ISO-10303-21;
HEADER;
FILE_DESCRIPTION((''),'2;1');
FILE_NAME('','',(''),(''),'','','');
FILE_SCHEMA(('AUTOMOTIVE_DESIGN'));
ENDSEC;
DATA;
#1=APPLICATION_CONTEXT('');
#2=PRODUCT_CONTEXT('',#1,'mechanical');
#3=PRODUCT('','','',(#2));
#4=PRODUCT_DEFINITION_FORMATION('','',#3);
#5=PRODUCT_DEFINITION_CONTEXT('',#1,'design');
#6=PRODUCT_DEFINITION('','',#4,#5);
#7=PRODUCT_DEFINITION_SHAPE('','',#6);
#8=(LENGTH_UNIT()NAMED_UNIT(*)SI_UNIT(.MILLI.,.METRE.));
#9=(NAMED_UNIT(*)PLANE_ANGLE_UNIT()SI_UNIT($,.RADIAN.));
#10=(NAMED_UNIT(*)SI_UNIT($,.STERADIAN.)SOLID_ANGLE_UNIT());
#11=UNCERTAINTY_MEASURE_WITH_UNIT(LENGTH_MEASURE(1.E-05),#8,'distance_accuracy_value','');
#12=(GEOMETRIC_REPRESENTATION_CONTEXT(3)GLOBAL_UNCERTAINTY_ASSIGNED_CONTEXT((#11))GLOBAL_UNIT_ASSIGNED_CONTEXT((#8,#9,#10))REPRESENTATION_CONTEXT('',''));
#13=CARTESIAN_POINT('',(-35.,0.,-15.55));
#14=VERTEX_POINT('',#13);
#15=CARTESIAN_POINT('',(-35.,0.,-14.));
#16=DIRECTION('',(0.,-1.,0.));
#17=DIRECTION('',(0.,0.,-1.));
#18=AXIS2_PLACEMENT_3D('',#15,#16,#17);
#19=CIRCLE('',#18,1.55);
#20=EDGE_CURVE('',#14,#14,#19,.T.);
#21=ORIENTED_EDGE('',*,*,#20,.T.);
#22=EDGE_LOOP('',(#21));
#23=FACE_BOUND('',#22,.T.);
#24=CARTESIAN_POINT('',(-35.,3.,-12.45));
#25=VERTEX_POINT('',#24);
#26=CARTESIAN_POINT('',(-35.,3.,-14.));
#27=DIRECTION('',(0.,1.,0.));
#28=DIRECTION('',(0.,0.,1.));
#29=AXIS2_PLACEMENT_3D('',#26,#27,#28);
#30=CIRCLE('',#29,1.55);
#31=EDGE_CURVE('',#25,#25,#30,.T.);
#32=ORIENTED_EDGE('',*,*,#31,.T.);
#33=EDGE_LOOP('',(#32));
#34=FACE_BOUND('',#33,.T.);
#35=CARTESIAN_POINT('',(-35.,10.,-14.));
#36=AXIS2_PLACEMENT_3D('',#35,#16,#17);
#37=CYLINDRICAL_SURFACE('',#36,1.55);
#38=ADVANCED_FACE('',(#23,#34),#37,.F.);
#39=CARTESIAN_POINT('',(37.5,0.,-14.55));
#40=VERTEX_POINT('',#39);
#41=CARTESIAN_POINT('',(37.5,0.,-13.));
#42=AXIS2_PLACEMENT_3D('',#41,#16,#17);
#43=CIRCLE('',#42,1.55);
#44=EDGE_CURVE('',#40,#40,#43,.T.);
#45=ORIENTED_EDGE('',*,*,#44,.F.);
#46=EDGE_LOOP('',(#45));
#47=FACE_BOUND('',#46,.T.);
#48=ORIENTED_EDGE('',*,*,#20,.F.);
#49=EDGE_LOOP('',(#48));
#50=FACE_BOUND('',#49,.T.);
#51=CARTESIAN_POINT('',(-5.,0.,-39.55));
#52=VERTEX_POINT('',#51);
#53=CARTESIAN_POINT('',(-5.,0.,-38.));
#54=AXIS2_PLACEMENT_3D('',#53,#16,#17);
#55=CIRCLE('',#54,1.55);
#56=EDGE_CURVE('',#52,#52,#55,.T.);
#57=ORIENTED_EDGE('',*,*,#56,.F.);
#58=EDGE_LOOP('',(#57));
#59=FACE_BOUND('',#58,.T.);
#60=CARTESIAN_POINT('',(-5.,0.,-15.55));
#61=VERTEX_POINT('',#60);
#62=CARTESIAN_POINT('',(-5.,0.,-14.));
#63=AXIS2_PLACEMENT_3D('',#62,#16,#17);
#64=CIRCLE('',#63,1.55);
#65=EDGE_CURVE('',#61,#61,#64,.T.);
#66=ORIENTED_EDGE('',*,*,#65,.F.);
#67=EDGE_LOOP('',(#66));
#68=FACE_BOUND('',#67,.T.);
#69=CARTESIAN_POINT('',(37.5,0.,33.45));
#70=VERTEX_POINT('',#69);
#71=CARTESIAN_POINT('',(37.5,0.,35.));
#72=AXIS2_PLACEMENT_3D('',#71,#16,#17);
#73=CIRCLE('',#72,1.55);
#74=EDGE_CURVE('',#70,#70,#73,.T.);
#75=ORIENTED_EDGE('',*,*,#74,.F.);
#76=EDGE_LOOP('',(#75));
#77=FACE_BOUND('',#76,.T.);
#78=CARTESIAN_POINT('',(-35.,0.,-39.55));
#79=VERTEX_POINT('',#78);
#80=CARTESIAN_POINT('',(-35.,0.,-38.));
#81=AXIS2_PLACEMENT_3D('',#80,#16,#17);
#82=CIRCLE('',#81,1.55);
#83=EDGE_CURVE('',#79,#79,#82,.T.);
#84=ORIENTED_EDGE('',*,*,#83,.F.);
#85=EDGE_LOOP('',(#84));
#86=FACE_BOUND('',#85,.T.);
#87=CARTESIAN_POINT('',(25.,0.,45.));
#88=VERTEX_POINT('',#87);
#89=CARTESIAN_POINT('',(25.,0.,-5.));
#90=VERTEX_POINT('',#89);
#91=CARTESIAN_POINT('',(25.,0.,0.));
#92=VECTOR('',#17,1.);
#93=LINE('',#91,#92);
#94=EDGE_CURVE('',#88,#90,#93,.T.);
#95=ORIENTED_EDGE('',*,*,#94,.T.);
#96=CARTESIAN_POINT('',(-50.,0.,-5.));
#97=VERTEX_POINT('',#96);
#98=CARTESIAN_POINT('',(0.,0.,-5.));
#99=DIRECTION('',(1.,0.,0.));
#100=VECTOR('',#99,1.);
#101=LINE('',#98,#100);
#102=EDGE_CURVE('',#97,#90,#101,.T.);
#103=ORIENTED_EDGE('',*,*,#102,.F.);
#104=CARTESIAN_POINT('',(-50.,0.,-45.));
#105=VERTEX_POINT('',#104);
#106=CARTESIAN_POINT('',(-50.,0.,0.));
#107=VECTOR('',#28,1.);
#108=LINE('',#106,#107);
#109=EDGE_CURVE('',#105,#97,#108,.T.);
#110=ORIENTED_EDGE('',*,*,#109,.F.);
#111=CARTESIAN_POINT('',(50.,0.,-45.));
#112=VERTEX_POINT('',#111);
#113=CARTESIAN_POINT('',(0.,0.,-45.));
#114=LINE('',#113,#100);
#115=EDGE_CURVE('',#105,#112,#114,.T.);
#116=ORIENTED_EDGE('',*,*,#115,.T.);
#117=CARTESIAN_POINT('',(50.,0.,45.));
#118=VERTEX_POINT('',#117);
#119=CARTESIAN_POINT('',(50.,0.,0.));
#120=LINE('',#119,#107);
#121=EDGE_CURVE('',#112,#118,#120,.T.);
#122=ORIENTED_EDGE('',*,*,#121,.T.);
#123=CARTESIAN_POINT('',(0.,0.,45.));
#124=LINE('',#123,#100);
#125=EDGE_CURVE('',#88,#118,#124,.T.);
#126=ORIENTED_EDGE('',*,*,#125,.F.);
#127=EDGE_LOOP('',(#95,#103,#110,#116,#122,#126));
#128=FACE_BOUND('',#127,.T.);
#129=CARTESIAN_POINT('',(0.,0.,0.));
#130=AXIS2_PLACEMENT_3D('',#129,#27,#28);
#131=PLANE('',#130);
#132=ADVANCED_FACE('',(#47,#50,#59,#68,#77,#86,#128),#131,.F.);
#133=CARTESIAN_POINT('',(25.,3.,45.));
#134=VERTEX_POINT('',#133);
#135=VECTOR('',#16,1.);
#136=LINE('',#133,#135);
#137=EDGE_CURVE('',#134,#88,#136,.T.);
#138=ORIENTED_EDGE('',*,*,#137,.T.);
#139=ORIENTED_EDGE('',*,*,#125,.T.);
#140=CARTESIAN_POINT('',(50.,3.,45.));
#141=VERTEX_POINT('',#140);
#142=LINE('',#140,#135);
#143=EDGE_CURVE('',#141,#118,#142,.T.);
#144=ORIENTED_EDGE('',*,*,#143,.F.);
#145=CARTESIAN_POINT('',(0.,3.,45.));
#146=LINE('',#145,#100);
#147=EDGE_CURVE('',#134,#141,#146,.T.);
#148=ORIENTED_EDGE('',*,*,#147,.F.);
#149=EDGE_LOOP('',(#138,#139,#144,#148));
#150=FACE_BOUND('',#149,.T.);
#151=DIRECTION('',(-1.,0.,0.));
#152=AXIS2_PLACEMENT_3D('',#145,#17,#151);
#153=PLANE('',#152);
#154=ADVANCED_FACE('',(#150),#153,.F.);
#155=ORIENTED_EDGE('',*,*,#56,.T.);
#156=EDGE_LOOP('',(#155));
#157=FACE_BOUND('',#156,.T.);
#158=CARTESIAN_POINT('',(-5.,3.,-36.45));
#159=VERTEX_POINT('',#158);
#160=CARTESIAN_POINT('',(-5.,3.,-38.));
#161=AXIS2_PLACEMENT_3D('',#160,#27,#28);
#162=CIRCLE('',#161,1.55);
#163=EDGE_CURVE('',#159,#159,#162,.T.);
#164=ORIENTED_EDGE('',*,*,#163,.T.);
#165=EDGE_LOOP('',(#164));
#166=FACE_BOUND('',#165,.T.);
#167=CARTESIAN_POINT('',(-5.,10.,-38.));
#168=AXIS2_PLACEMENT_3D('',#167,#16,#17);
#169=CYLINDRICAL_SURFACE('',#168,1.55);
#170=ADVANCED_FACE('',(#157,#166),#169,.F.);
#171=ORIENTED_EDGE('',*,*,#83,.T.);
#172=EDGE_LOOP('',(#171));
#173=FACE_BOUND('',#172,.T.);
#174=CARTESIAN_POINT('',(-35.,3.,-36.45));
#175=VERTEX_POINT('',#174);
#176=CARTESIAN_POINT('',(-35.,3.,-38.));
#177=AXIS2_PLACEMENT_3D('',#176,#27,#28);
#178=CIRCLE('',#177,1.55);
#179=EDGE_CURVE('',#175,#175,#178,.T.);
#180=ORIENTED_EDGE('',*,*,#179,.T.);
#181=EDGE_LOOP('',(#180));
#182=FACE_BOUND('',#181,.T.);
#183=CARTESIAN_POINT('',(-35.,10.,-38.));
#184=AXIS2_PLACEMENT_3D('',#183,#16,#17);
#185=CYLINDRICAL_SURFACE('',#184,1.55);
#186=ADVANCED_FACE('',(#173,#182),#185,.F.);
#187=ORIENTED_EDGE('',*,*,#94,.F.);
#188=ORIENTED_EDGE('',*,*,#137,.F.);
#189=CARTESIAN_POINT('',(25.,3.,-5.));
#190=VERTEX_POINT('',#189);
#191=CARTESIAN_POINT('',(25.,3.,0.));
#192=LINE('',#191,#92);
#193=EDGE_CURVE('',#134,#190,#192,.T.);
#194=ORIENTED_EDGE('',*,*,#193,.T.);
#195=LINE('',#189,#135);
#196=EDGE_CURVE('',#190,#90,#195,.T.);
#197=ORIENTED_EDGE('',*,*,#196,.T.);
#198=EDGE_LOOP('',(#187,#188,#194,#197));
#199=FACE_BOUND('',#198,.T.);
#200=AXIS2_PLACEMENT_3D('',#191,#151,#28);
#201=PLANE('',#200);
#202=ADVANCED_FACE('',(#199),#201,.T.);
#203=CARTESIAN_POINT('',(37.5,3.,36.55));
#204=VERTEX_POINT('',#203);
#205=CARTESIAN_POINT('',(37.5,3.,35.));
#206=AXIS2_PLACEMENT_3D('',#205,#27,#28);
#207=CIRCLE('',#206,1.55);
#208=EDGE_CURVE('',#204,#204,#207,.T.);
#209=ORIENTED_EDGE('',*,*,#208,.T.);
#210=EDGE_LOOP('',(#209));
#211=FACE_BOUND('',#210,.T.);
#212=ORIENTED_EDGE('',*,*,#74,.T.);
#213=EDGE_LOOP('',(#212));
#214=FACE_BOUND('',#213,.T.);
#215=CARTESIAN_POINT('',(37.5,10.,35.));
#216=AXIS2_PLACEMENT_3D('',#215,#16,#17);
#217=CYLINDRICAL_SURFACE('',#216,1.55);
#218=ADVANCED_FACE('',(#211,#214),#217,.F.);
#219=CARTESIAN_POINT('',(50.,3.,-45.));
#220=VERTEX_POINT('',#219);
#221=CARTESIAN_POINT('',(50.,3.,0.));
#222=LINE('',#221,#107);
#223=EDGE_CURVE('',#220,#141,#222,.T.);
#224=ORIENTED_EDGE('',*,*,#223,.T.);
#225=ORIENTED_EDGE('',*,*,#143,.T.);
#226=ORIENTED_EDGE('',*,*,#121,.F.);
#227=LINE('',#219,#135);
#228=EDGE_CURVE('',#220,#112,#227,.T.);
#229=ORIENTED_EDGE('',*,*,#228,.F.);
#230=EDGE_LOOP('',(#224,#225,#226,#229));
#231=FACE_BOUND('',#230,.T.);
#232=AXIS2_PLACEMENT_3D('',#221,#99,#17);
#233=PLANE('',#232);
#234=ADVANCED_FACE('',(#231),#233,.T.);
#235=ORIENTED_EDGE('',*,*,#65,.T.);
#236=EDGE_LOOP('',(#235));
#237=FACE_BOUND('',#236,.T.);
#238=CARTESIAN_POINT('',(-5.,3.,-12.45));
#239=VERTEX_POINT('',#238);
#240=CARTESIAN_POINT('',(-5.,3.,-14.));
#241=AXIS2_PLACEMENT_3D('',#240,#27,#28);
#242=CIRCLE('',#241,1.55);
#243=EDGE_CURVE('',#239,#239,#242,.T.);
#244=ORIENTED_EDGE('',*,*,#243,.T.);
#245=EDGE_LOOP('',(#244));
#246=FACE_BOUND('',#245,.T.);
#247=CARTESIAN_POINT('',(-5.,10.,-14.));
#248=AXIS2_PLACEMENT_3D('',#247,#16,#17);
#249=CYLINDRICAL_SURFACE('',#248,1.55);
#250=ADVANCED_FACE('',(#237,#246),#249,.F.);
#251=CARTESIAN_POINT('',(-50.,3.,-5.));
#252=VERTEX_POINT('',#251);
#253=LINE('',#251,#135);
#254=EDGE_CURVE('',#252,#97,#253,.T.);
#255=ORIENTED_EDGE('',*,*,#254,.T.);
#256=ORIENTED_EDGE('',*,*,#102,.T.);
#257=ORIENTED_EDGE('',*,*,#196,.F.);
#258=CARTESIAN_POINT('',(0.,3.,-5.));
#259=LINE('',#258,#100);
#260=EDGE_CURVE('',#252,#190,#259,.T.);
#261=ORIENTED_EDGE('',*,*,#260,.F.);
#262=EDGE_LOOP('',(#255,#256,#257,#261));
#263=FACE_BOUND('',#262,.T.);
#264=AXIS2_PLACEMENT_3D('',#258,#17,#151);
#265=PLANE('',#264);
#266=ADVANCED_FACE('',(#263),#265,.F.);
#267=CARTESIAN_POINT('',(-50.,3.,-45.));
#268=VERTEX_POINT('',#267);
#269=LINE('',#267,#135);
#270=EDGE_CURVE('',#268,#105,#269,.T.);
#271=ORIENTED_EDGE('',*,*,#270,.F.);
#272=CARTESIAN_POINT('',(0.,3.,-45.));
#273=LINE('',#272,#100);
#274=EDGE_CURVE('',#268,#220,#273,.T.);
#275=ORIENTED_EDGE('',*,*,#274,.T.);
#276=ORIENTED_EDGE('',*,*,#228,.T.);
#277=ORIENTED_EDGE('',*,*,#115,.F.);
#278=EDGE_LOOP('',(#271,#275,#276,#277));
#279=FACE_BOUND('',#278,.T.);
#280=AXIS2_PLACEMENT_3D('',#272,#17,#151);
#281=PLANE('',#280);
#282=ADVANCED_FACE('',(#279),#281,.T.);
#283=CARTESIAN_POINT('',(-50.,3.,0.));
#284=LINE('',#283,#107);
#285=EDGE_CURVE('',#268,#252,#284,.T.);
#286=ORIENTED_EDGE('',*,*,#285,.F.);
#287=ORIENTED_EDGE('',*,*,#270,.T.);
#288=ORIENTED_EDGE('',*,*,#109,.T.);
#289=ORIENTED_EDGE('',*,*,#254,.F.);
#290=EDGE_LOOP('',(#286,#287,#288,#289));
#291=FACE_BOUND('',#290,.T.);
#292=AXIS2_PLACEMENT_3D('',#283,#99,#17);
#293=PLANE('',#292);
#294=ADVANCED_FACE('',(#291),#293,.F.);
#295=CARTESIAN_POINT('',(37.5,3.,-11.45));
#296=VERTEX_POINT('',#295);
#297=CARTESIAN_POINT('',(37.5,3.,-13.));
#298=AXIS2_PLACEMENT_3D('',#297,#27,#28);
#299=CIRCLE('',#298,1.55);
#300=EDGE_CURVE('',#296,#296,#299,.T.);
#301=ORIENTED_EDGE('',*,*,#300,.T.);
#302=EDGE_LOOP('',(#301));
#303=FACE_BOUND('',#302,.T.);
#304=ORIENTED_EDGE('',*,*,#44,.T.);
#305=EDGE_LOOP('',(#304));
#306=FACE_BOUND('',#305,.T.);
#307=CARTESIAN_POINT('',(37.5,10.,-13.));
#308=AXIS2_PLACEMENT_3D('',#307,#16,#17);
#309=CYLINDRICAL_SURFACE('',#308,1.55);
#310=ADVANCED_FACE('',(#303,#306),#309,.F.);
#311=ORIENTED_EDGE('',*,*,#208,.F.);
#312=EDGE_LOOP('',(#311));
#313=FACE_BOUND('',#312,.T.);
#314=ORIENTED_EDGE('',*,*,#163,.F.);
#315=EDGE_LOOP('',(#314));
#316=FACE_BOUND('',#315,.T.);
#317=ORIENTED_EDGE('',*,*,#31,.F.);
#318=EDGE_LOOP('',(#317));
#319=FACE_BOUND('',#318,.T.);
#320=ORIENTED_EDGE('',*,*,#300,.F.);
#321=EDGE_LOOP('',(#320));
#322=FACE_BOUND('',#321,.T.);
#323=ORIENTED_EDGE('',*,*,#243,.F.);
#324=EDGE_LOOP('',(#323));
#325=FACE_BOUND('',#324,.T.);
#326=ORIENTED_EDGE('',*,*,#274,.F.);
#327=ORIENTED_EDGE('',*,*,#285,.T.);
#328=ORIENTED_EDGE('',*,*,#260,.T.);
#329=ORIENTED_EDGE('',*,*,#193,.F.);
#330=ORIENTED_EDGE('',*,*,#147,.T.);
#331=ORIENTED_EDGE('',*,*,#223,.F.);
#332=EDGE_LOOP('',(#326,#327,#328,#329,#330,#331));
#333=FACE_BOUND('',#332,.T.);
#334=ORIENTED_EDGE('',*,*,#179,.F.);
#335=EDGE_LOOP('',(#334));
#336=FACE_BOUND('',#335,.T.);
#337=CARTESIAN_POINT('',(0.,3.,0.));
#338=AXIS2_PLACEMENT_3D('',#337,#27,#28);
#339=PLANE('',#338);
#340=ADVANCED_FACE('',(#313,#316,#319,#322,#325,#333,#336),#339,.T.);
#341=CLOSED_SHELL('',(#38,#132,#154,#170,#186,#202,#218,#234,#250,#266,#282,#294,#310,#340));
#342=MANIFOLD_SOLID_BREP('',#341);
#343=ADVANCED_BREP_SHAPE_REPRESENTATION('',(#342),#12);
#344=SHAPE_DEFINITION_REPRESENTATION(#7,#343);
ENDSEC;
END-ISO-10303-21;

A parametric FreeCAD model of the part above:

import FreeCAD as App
import Part
import Sketcher
from FreeCAD import Vector
Q = App.Units.Quantity

doc = App.newDocument("Part")
body = doc.addObject("PartDesign::Body", "Body")

# Sketch on XZ plane
sketch1 = body.newObject("Sketcher::SketchObject", "Sketch")
sketch1.AttachmentSupport = (doc.getObject("XZ_Plane"), [""])
sketch1.MapMode = "FlatFace"
sketch1.addGeometry([
    Part.LineSegment(Vector(50, -45, 0), Vector(-50, -45, 0)),  # 0
    Part.LineSegment(Vector(-50, -45, 0), Vector(-50, -5, 0)),  # 1
    Part.LineSegment(Vector(-50, -5, 0), Vector(25, -5, 0)),  # 2
    Part.LineSegment(Vector(25, -5, 0), Vector(25, 45, 0)),  # 3
    Part.LineSegment(Vector(25, 45, 0), Vector(50, 45, 0)),  # 4
    Part.LineSegment(Vector(50, 45, 0), Vector(50, -45, 0)),  # 5
], False)
sketch1.addConstraint([
    Sketcher.Constraint("Coincident", 0, 2, 1, 1),
    Sketcher.Constraint("Coincident", 1, 2, 2, 1),
    Sketcher.Constraint("Coincident", 2, 2, 3, 1),
    Sketcher.Constraint("Coincident", 3, 2, 4, 1),
    Sketcher.Constraint("Coincident", 4, 2, 5, 1),
    Sketcher.Constraint("Coincident", 5, 2, 0, 1),
    Sketcher.Constraint("Horizontal", 0),
    Sketcher.Constraint("Vertical", 1),
    Sketcher.Constraint("Horizontal", 2),
    Sketcher.Constraint("Vertical", 3),
    Sketcher.Constraint("Horizontal", 4),
    Sketcher.Constraint("Vertical", 5),
    Sketcher.Constraint("Symmetric", 0, 2, 4, 2, -1, 1),
    Sketcher.Constraint("DistanceX", 0, 2, 0, 1, Q("100 mm")),
    Sketcher.Constraint("DistanceX", 2, 1, 2, 2, Q("75 mm")),
    Sketcher.Constraint("DistanceY", 1, 1, 1, 2, Q("40 mm")),
    Sketcher.Constraint("DistanceY", 3, 1, 3, 2, Q("50 mm")),
])
pad1 = body.newObject("PartDesign::Pad", "Pad")
pad1.Profile = sketch1
pad1.Length = 3
pad1.Reversed = True

# Sketch on XZ plane
sketch2 = body.newObject("Sketcher::SketchObject", "Sketch001")
sketch2.AttachmentSupport = (doc.getObject("XZ_Plane"), [""])
sketch2.MapMode = "FlatFace"
sketch2.addGeometry([
    Part.Circle(Vector(-5, -38, 0), Vector(0, 0, 1), 1.6),
    Part.Circle(Vector(-5, -14, 0), Vector(0, 0, 1), 1.6),
    Part.Circle(Vector(-35, -38, 0), Vector(0, 0, 1), 1.6),
    Part.Circle(Vector(-35, -14, 0), Vector(0, 0, 1), 1.6),
], False)
sketch2.addConstraint([
    Sketcher.Constraint("Equal", 0, 1),
    Sketcher.Constraint("Equal", 1, 2),
    Sketcher.Constraint("Equal", 2, 3),
    Sketcher.Constraint("Horizontal", 0, 3, 2, 3),
    Sketcher.Constraint("Horizontal", 1, 3, 3, 3),
    Sketcher.Constraint("Vertical", 0, 3, 1, 3),
    Sketcher.Constraint("Vertical", 2, 3, 3, 3),
    Sketcher.Constraint("Diameter", 0, Q("3.1 mm")),
    Sketcher.Constraint("DistanceX", 0, 3, -1, 1, Q("5 mm")),
    Sketcher.Constraint("DistanceY", 0, 3, -1, 1, Q("38 mm")),
    Sketcher.Constraint("DistanceY", 1, 3, -1, 1, Q("14 mm")),
    Sketcher.Constraint("DistanceX", 2, 3, -1, 1, Q("35 mm")),
])
pocket1 = body.newObject("PartDesign::Pocket", "Pocket")
pocket1.Profile = sketch2
pocket1.Length = 10

# Sketch on XZ plane
sketch3 = body.newObject("Sketcher::SketchObject", "Sketch002")
sketch3.AttachmentSupport = (doc.getObject("XZ_Plane"), [""])
sketch3.MapMode = "FlatFace"
sketch3.addGeometry([
    Part.Circle(Vector(37.5, -13, 0), Vector(0, 0, 1), 1.6),
    Part.Circle(Vector(37.5, 35, 0), Vector(0, 0, 1), 1.6),
], False)
sketch3.addConstraint([
    Sketcher.Constraint("Equal", 0, 1),
    Sketcher.Constraint("Vertical", 0, 3, 1, 3),
    Sketcher.Constraint("Diameter", 0, Q("3.1 mm")),
    Sketcher.Constraint("DistanceY", 0, 3, -1, 1, Q("13 mm")),
    Sketcher.Constraint("DistanceY", -1, 1, 1, 3, Q("35 mm")),
    Sketcher.Constraint("DistanceX", -1, 1, 0, 3, Q("37.5 mm")),
])
pocket2 = body.newObject("PartDesign::Pocket", "Pocket001")
pocket2.Profile = sketch3
pocket2.Length = 10

doc.recompute()
